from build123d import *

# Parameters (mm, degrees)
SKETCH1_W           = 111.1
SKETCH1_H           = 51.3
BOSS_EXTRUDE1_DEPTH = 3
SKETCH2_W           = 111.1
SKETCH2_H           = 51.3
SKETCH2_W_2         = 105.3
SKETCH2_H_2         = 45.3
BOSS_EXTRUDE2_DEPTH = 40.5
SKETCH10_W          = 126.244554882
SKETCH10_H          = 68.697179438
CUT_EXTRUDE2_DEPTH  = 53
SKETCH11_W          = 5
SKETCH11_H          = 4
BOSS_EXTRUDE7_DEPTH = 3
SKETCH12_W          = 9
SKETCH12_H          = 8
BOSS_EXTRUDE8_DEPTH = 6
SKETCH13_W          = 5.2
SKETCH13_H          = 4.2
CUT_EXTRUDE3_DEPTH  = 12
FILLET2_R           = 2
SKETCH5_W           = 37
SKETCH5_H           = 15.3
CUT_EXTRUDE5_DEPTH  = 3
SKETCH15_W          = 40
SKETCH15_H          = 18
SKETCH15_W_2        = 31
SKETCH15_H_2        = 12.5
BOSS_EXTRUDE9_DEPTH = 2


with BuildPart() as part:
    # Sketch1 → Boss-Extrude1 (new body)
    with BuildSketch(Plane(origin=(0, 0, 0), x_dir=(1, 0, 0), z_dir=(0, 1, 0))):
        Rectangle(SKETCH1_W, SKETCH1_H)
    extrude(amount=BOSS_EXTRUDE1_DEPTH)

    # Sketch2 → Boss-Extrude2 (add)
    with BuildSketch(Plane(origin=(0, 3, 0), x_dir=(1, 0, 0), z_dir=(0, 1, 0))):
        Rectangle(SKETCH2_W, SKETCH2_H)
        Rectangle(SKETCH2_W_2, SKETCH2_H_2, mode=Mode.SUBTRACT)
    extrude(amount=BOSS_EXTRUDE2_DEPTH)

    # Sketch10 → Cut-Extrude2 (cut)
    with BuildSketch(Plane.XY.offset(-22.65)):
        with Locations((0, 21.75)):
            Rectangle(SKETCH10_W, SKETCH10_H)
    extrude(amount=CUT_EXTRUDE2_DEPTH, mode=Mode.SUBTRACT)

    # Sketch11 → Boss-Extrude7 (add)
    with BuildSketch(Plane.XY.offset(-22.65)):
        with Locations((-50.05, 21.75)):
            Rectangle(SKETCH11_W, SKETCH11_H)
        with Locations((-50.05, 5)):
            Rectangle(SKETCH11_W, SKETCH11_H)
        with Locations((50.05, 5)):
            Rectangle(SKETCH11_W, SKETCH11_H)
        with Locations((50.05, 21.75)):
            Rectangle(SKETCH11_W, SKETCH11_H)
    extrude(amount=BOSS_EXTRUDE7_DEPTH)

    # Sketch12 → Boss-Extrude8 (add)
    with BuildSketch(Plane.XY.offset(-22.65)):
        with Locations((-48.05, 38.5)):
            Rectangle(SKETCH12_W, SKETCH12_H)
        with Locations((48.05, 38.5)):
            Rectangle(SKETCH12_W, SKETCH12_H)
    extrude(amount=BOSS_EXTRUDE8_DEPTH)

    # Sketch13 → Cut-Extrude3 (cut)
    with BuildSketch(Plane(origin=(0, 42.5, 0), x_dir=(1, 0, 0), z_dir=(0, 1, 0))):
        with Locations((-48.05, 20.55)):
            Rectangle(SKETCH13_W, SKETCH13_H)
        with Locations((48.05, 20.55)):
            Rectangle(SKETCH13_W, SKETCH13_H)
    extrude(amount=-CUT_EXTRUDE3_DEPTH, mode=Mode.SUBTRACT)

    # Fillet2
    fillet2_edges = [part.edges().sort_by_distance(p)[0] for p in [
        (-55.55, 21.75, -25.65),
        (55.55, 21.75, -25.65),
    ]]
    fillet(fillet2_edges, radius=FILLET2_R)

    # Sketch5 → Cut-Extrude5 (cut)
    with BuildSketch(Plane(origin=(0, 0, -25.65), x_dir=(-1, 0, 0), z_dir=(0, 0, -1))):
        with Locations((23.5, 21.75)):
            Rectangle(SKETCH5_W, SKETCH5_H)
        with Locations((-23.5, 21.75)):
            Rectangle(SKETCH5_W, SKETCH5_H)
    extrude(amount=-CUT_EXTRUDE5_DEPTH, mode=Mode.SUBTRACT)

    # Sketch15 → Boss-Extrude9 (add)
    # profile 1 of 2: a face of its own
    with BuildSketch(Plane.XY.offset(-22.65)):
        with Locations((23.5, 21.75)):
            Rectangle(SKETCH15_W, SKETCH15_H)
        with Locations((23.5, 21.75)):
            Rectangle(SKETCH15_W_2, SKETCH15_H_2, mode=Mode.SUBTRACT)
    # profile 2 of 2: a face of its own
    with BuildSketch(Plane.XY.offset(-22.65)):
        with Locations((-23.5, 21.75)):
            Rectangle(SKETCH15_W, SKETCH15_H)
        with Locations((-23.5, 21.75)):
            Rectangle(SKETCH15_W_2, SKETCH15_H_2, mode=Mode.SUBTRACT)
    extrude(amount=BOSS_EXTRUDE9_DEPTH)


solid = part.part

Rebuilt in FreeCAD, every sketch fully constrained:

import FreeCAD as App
import Part
import Sketcher


def edges_at(feature, points):
    """Names of the edges that pass closest to the given points."""
    edges = feature.Shape.Edges
    near = lambda p: min(range(len(edges)), key=lambda i: edges[i].distToShape(Part.Vertex(*p))[0])
    return sorted({f"Edge{near(p) + 1}" for p in points})

doc = App.newDocument("Part")
body = doc.addObject("PartDesign::Body", "Body")

# Sketch on XZ plane
sketch1 = body.newObject("Sketcher::SketchObject", "Sketch")
sketch1.AttachmentSupport = (doc.getObject("XZ_Plane"), [""])
sketch1.MapMode = "FlatFace"
sketch1.addGeometry([
    Part.LineSegment(App.Vector(-56, -26, 0), App.Vector(-56, 26, 0)),
    Part.LineSegment(App.Vector(-56, 26, 0), App.Vector(56, 26, 0)),
    Part.LineSegment(App.Vector(56, 26, 0), App.Vector(56, -26, 0)),
    Part.LineSegment(App.Vector(56, -26, 0), App.Vector(-56, -26, 0)),
], False)
sketch1.addConstraint([
    Sketcher.Constraint("Coincident", 0, 2, 1, 1),
    Sketcher.Constraint("Coincident", 1, 2, 2, 1),
    Sketcher.Constraint("Coincident", 2, 2, 3, 1),
    Sketcher.Constraint("Coincident", 3, 2, 0, 1),
    Sketcher.Constraint("Vertical", 0),
    Sketcher.Constraint("Horizontal", 1),
    Sketcher.Constraint("Vertical", 2),
    Sketcher.Constraint("Horizontal", 3),
    Sketcher.Constraint("Symmetric", 0, 2, 2, 2, -1, 1),
    Sketcher.Constraint("DistanceX", 1, 1, 1, 2, 111.1),
    Sketcher.Constraint("DistanceY", 0, 1, 0, 2, 51.3),
])
pad1 = body.newObject("PartDesign::Pad", "Pad")
pad1.Profile = sketch1
pad1.Length = 3
pad1.Reversed = True

# Sketch on XZ plane
sketch2 = body.newObject("Sketcher::SketchObject", "Sketch001")
sketch2.AttachmentSupport = (doc.getObject("XZ_Plane"), [""])
sketch2.MapMode = "FlatFace"
sketch2.AttachmentOffset = App.Placement(App.Vector(0, 0, -3), App.Rotation())
sketch2.addGeometry([
    Part.LineSegment(App.Vector(-56, -26, 0), App.Vector(-56, 26, 0)),  # 0
    Part.LineSegment(App.Vector(-56, 26, 0), App.Vector(56, 26, 0)),  # 1
    Part.LineSegment(App.Vector(56, 26, 0), App.Vector(56, -26, 0)),  # 2
    Part.LineSegment(App.Vector(56, -26, 0), App.Vector(-56, -26, 0)),  # 3
    Part.LineSegment(App.Vector(53, 23, 0), App.Vector(-53, 23, 0)),  # 4
    Part.LineSegment(App.Vector(-53, 23, 0), App.Vector(-53, -23, 0)),  # 5
    Part.LineSegment(App.Vector(-53, -23, 0), App.Vector(53, -23, 0)),  # 6
    Part.LineSegment(App.Vector(53, -23, 0), App.Vector(53, 23, 0)),  # 7
], False)
sketch2.addConstraint([
    Sketcher.Constraint("Coincident", 0, 2, 1, 1),
    Sketcher.Constraint("Coincident", 1, 2, 2, 1),
    Sketcher.Constraint("Coincident", 2, 2, 3, 1),
    Sketcher.Constraint("Coincident", 3, 2, 0, 1),
    Sketcher.Constraint("Coincident", 4, 2, 5, 1),
    Sketcher.Constraint("Coincident", 5, 2, 6, 1),
    Sketcher.Constraint("Coincident", 6, 2, 7, 1),
    Sketcher.Constraint("Coincident", 7, 2, 4, 1),
    Sketcher.Constraint("Vertical", 0),
    Sketcher.Constraint("Horizontal", 1),
    Sketcher.Constraint("Vertical", 2),
    Sketcher.Constraint("Horizontal", 3),
    Sketcher.Constraint("Horizontal", 4),
    Sketcher.Constraint("Vertical", 5),
    Sketcher.Constraint("Horizontal", 6),
    Sketcher.Constraint("Vertical", 7),
    Sketcher.Constraint("Symmetric", 0, 2, 2, 2, -1, 1),
    Sketcher.Constraint("Symmetric", 4, 2, 6, 2, -1, 1),
    Sketcher.Constraint("DistanceX", 1, 1, 1, 2, 111.1),
    Sketcher.Constraint("DistanceX", 4, 2, 4, 1, 105.3),
    Sketcher.Constraint("DistanceY", 0, 1, 0, 2, 51.3),
    Sketcher.Constraint("DistanceY", 5, 2, 5, 1, 45.3),
])
pad2 = body.newObject("PartDesign::Pad", "Pad001")
pad2.Profile = sketch2
pad2.Length = 40.5
pad2.Reversed = True

# Sketch on XY plane
sketch3 = body.newObject("Sketcher::SketchObject", "Sketch002")
sketch3.AttachmentSupport = (doc.getObject("XY_Plane"), [""])
sketch3.MapMode = "FlatFace"
sketch3.AttachmentOffset = App.Placement(App.Vector(0, 0, -22.65), App.Rotation())
sketch3.addGeometry([
    Part.LineSegment(App.Vector(-63, 56, 0), App.Vector(-63, -13, 0)),
    Part.LineSegment(App.Vector(-63, -13, 0), App.Vector(63, -13, 0)),
    Part.LineSegment(App.Vector(63, -13, 0), App.Vector(63, 56, 0)),
    Part.LineSegment(App.Vector(63, 56, 0), App.Vector(-63, 56, 0)),
], False)
sketch3.addConstraint([
    Sketcher.Constraint("Coincident", 0, 2, 1, 1),
    Sketcher.Constraint("Coincident", 1, 2, 2, 1),
    Sketcher.Constraint("Coincident", 2, 2, 3, 1),
    Sketcher.Constraint("Coincident", 3, 2, 0, 1),
    Sketcher.Constraint("Vertical", 0),
    Sketcher.Constraint("Horizontal", 1),
    Sketcher.Constraint("Vertical", 2),
    Sketcher.Constraint("Horizontal", 3),
    Sketcher.Constraint("DistanceY", 0, 2, 0, 1, 68.697179),
    Sketcher.Constraint("DistanceX", 1, 1, 1, 2, 126.244555),
    Sketcher.Constraint("DistanceY", 0, 2, -1, 1, 12.59859),
    Sketcher.Constraint("DistanceX", 0, 2, -1, 1, 63.122277),
])
pocket1 = body.newObject("PartDesign::Pocket", "Pocket")
pocket1.Profile = sketch3
pocket1.Length = 53
pocket1.Reversed = True

# Sketch on XY plane
sketch4 = body.newObject("Sketcher::SketchObject", "Sketch003")
sketch4.AttachmentSupport = (doc.getObject("XY_Plane"), [""])
sketch4.MapMode = "FlatFace"
sketch4.AttachmentOffset = App.Placement(App.Vector(0, 0, -22.65), App.Rotation())
sketch4.addGeometry([
    Part.LineSegment(App.Vector(-52.5, 23.8, 0), App.Vector(-52.5, 19.8, 0)),  # 0
    Part.LineSegment(App.Vector(-52.5, 19.8, 0), App.Vector(-47.5, 19.8, 0)),  # 1
    Part.LineSegment(App.Vector(-47.5, 19.8, 0), App.Vector(-47.5, 23.8, 0)),  # 2
    Part.LineSegment(App.Vector(-47.5, 23.8, 0), App.Vector(-52.5, 23.8, 0)),  # 3
    Part.LineSegment(App.Vector(-52.5, 7, 0), App.Vector(-52.5, 3, 0)),  # 4
    Part.LineSegment(App.Vector(-52.5, 3, 0), App.Vector(-47.5, 3, 0)),  # 5
    Part.LineSegment(App.Vector(-47.5, 3, 0), App.Vector(-47.5, 7, 0)),  # 6
    Part.LineSegment(App.Vector(-47.5, 7, 0), App.Vector(-52.5, 7, 0)),  # 7
    Part.LineSegment(App.Vector(47.5, 7, 0), App.Vector(47.5, 3, 0)),  # 8
    Part.LineSegment(App.Vector(47.5, 3, 0), App.Vector(52.5, 3, 0)),  # 9
    Part.LineSegment(App.Vector(52.5, 3, 0), App.Vector(52.5, 7, 0)),  # 10
    Part.LineSegment(App.Vector(52.5, 7, 0), App.Vector(47.5, 7, 0)),  # 11
    Part.LineSegment(App.Vector(47.5, 23.8, 0), App.Vector(47.5, 19.8, 0)),  # 12
    Part.LineSegment(App.Vector(47.5, 19.8, 0), App.Vector(52.5, 19.8, 0)),  # 13
    Part.LineSegment(App.Vector(52.5, 19.8, 0), App.Vector(52.5, 23.8, 0)),  # 14
    Part.LineSegment(App.Vector(52.5, 23.8, 0), App.Vector(47.5, 23.8, 0)),  # 15
], False)
sketch4.addConstraint([
    Sketcher.Constraint("Coincident", 0, 2, 1, 1),
    Sketcher.Constraint("Coincident", 1, 2, 2, 1),
    Sketcher.Constraint("Coincident", 2, 2, 3, 1),
    Sketcher.Constraint("Coincident", 3, 2, 0, 1),
    Sketcher.Constraint("Coincident", 4, 2, 5, 1),
    Sketcher.Constraint("Coincident", 5, 2, 6, 1),
    Sketcher.Constraint("Coincident", 6, 2, 7, 1),
    Sketcher.Constraint("Coincident", 7, 2, 4, 1),
    Sketcher.Constraint("Coincident", 8, 2, 9, 1),
    Sketcher.Constraint("Coincident", 9, 2, 10, 1),
    Sketcher.Constraint("Coincident", 10, 2, 11, 1),
    Sketcher.Constraint("Coincident", 11, 2, 8, 1),
    Sketcher.Constraint("Coincident", 12, 2, 13, 1),
    Sketcher.Constraint("Coincident", 13, 2, 14, 1),
    Sketcher.Constraint("Coincident", 14, 2, 15, 1),
    Sketcher.Constraint("Coincident", 15, 2, 12, 1),
    Sketcher.Constraint("Vertical", 0),
    Sketcher.Constraint("Horizontal", 1),
    Sketcher.Constraint("Vertical", 2),
    Sketcher.Constraint("Horizontal", 3),
    Sketcher.Constraint("Vertical", 4),
    Sketcher.Constraint("Horizontal", 5),
    Sketcher.Constraint("Vertical", 6),
    Sketcher.Constraint("Horizontal", 7),
    Sketcher.Constraint("Vertical", 8),
    Sketcher.Constraint("Horizontal", 9),
    Sketcher.Constraint("Vertical", 10),
    Sketcher.Constraint("Horizontal", 11),
    Sketcher.Constraint("Vertical", 12),
    Sketcher.Constraint("Horizontal", 13),
    Sketcher.Constraint("Vertical", 14),
    Sketcher.Constraint("Horizontal", 15),
    Sketcher.Constraint("Symmetric", 5, 2, 8, 2, -2),
    Sketcher.Constraint("Symmetric", 7, 2, 10, 2, -2),
    Sketcher.Constraint("Symmetric", 1, 2, 12, 2, -2),
    Sketcher.Constraint("Symmetric", 3, 2, 14, 2, -2),
    Sketcher.Constraint("Vertical", 3, 2, 4, 2),
    Sketcher.Constraint("Vertical", 2, 2, 5, 2),
    Sketcher.Constraint("Equal", 2, 4),
    Sketcher.Constraint("DistanceX", 1, 1, 1, 2, 5.0),
    Sketcher.Constraint("DistanceY", 0, 2, 0, 1, 4.0),
    Sketcher.Constraint("DistanceY", -1, 1, 4, 2, 3.0),
    Sketcher.Constraint("DistanceX", 5, 2, 8, 2, 95.1),
    Sketcher.Constraint("DistanceY", -1, 1, 0, 2, 19.75),
])
pad3 = body.newObject("PartDesign::Pad", "Pad002")
pad3.Profile = sketch4
pad3.Length = 3

# Sketch on XY plane
sketch5 = body.newObject("Sketcher::SketchObject", "Sketch004")
sketch5.AttachmentSupport = (doc.getObject("XY_Plane"), [""])
sketch5.MapMode = "FlatFace"
sketch5.AttachmentOffset = App.Placement(App.Vector(0, 0, -22.65), App.Rotation())
sketch5.addGeometry([
    Part.LineSegment(App.Vector(-53, 42, 0), App.Vector(-53, 34, 0)),  # 0
    Part.LineSegment(App.Vector(-53, 34, 0), App.Vector(-44, 34, 0)),  # 1
    Part.LineSegment(App.Vector(-44, 34, 0), App.Vector(-44, 42, 0)),  # 2
    Part.LineSegment(App.Vector(-44, 42, 0), App.Vector(-53, 42, 0)),  # 3
    Part.LineSegment(App.Vector(44, 42, 0), App.Vector(44, 34, 0)),  # 4
    Part.LineSegment(App.Vector(44, 34, 0), App.Vector(53, 34, 0)),  # 5
    Part.LineSegment(App.Vector(53, 34, 0), App.Vector(53, 42, 0)),  # 6
    Part.LineSegment(App.Vector(53, 42, 0), App.Vector(44, 42, 0)),  # 7
], False)
sketch5.addConstraint([
    Sketcher.Constraint("Coincident", 0, 2, 1, 1),
    Sketcher.Constraint("Coincident", 1, 2, 2, 1),
    Sketcher.Constraint("Coincident", 2, 2, 3, 1),
    Sketcher.Constraint("Coincident", 3, 2, 0, 1),
    Sketcher.Constraint("Coincident", 4, 2, 5, 1),
    Sketcher.Constraint("Coincident", 5, 2, 6, 1),
    Sketcher.Constraint("Coincident", 6, 2, 7, 1),
    Sketcher.Constraint("Coincident", 7, 2, 4, 1),
    Sketcher.Constraint("Vertical", 0),
    Sketcher.Constraint("Horizontal", 1),
    Sketcher.Constraint("Vertical", 2),
    Sketcher.Constraint("Horizontal", 3),
    Sketcher.Constraint("Vertical", 4),
    Sketcher.Constraint("Horizontal", 5),
    Sketcher.Constraint("Vertical", 6),
    Sketcher.Constraint("Horizontal", 7),
    Sketcher.Constraint("Symmetric", 1, 2, 4, 2, -2),
    Sketcher.Constraint("Symmetric", 3, 2, 6, 2, -2),
    Sketcher.Constraint("DistanceX", 1, 1, 1, 2, 9.0),
    Sketcher.Constraint("DistanceY", 0, 2, 0, 1, 8.0),
    Sketcher.Constraint("DistanceY", -1, 1, 0, 2, 34.5),
    Sketcher.Constraint("DistanceX", 1, 2, 4, 2, 87.1),
])
pad4 = body.newObject("PartDesign::Pad", "Pad003")
pad4.Profile = sketch5
pad4.Length = 6

# Sketch on XZ plane
sketch6 = body.newObject("Sketcher::SketchObject", "Sketch005")
sketch6.AttachmentSupport = (doc.getObject("XZ_Plane"), [""])
sketch6.MapMode = "FlatFace"
sketch6.AttachmentOffset = App.Placement(App.Vector(0, 0, -42.5), App.Rotation())
sketch6.addGeometry([
    Part.LineSegment(App.Vector(-50.6, -22.6, 0), App.Vector(-50.6, -18.4, 0)),  # 0
    Part.LineSegment(App.Vector(-50.6, -18.4, 0), App.Vector(-45.5, -18.4, 0)),  # 1
    Part.LineSegment(App.Vector(-45.5, -18.4, 0), App.Vector(-45.5, -22.6, 0)),  # 2
    Part.LineSegment(App.Vector(-45.5, -22.6, 0), App.Vector(-50.6, -22.6, 0)),  # 3
    Part.LineSegment(App.Vector(45.5, -22.6, 0), App.Vector(45.5, -18.4, 0)),  # 4
    Part.LineSegment(App.Vector(45.5, -18.4, 0), App.Vector(50.6, -18.4, 0)),  # 5
    Part.LineSegment(App.Vector(50.6, -18.4, 0), App.Vector(50.6, -22.6, 0)),  # 6
    Part.LineSegment(App.Vector(50.6, -22.6, 0), App.Vector(45.5, -22.6, 0)),  # 7
], False)
sketch6.addConstraint([
    Sketcher.Constraint("Coincident", 0, 2, 1, 1),
    Sketcher.Constraint("Coincident", 1, 2, 2, 1),
    Sketcher.Constraint("Coincident", 2, 2, 3, 1),
    Sketcher.Constraint("Coincident", 3, 2, 0, 1),
    Sketcher.Constraint("Coincident", 4, 2, 5, 1),
    Sketcher.Constraint("Coincident", 5, 2, 6, 1),
    Sketcher.Constraint("Coincident", 6, 2, 7, 1),
    Sketcher.Constraint("Coincident", 7, 2, 4, 1),
    Sketcher.Constraint("Vertical", 0),
    Sketcher.Constraint("Horizontal", 1),
    Sketcher.Constraint("Vertical", 2),
    Sketcher.Constraint("Horizontal", 3),
    Sketcher.Constraint("Vertical", 4),
    Sketcher.Constraint("Horizontal", 5),
    Sketcher.Constraint("Vertical", 6),
    Sketcher.Constraint("Horizontal", 7),
    Sketcher.Constraint("Symmetric", 1, 2, 4, 2, -2),
    Sketcher.Constraint("Symmetric", 3, 2, 6, 2, -2),
    Sketcher.Constraint("DistanceX", 1, 1, 1, 2, 5.2),
    Sketcher.Constraint("DistanceY", 0, 1, 0, 2, 4.2),
    Sketcher.Constraint("DistanceX", 1, 2, 4, 2, 90.9),
    Sketcher.Constraint("DistanceY", 0, 2, -1, 1, 18.45),
])
pocket2 = body.newObject("PartDesign::Pocket", "Pocket001")
pocket2.Profile = sketch6
pocket2.Length = 12
pocket2.Reversed = True
doc.recompute()

fillet = body.newObject("PartDesign::Fillet", "Fillet")
fillet.Base = (pocket2, edges_at(pocket2, [(-55.55, 21.75, -25.65), (55.55, 21.75, -25.65)]))
fillet.Radius = 2

# Sketch on XY plane
sketch7 = body.newObject("Sketcher::SketchObject", "Sketch006")
sketch7.AttachmentSupport = (doc.getObject("XY_Plane"), [""])
sketch7.MapMode = "FlatFace"
sketch7.AttachmentOffset = App.Placement(App.Vector(0, 0, -25.65), App.Rotation())
sketch7.addGeometry([
    Part.LineSegment(App.Vector(-5, 29, 0), App.Vector(-5, 14, 0)),  # 0
    Part.LineSegment(App.Vector(-5, 14, 0), App.Vector(-42, 14, 0)),  # 1
    Part.LineSegment(App.Vector(-42, 14, 0), App.Vector(-42, 29, 0)),  # 2
    Part.LineSegment(App.Vector(-42, 29, 0), App.Vector(-5, 29, 0)),  # 3
    Part.LineSegment(App.Vector(42, 29, 0), App.Vector(42, 14, 0)),  # 4
    Part.LineSegment(App.Vector(42, 14, 0), App.Vector(5, 14, 0)),  # 5
    Part.LineSegment(App.Vector(5, 14, 0), App.Vector(5, 29, 0)),  # 6
    Part.LineSegment(App.Vector(5, 29, 0), App.Vector(42, 29, 0)),  # 7
], False)
sketch7.addConstraint([
    Sketcher.Constraint("Coincident", 0, 2, 1, 1),
    Sketcher.Constraint("Coincident", 1, 2, 2, 1),
    Sketcher.Constraint("Coincident", 2, 2, 3, 1),
    Sketcher.Constraint("Coincident", 3, 2, 0, 1),
    Sketcher.Constraint("Coincident", 4, 2, 5, 1),
    Sketcher.Constraint("Coincident", 5, 2, 6, 1),
    Sketcher.Constraint("Coincident", 6, 2, 7, 1),
    Sketcher.Constraint("Coincident", 7, 2, 4, 1),
    Sketcher.Constraint("Vertical", 0),
    Sketcher.Constraint("Horizontal", 1),
    Sketcher.Constraint("Vertical", 2),
    Sketcher.Constraint("Horizontal", 3),
    Sketcher.Constraint("Vertical", 4),
    Sketcher.Constraint("Horizontal", 5),
    Sketcher.Constraint("Vertical", 6),
    Sketcher.Constraint("Horizontal", 7),
    Sketcher.Constraint("Symmetric", 1, 2, 4, 2, -2),
    Sketcher.Constraint("Symmetric", 3, 2, 6, 2, -2),
    Sketcher.Constraint("DistanceX", 1, 2, 1, 1, 37.0),
    Sketcher.Constraint("DistanceY", 0, 2, 0, 1, 15.3),
    Sketcher.Constraint("DistanceX", 0, 2, -1, 1, 5.0),
    Sketcher.Constraint("DistanceY", -1, 1, 0, 2, 14.1),
])
pocket3 = body.newObject("PartDesign::Pocket", "Pocket002")
pocket3.Profile = sketch7
pocket3.Length = 3
pocket3.Reversed = True

# Sketch on XY plane
sketch8 = body.newObject("Sketcher::SketchObject", "Sketch007")
sketch8.AttachmentSupport = (doc.getObject("XY_Plane"), [""])
sketch8.MapMode = "FlatFace"
sketch8.AttachmentOffset = App.Placement(App.Vector(0, 0, -22.65), App.Rotation())
sketch8.addGeometry([
    Part.LineSegment(App.Vector(4, 31, 0), App.Vector(4, 13, 0)),  # 0
    Part.LineSegment(App.Vector(4, 13, 0), App.Vector(44, 13, 0)),  # 1
    Part.LineSegment(App.Vector(44, 13, 0), App.Vector(44, 31, 0)),  # 2
    Part.LineSegment(App.Vector(44, 31, 0), App.Vector(4, 31, 0)),  # 3
    Part.LineSegment(App.Vector(39, 16, 0), App.Vector(8, 16, 0)),  # 4
    Part.LineSegment(App.Vector(8, 16, 0), App.Vector(8, 28, 0)),  # 5
    Part.LineSegment(App.Vector(8, 28, 0), App.Vector(39, 28, 0)),  # 6
    Part.LineSegment(App.Vector(39, 28, 0), App.Vector(39, 16, 0)),  # 7
    Part.LineSegment(App.Vector(-44, 31, 0), App.Vector(-44, 13, 0)),  # 8
    Part.LineSegment(App.Vector(-44, 13, 0), App.Vector(-4, 13, 0)),  # 9
    Part.LineSegment(App.Vector(-4, 13, 0), App.Vector(-4, 31, 0)),  # 10
    Part.LineSegment(App.Vector(-4, 31, 0), App.Vector(-44, 31, 0)),  # 11
    Part.LineSegment(App.Vector(-8, 16, 0), App.Vector(-39, 16, 0)),  # 12
    Part.LineSegment(App.Vector(-39, 16, 0), App.Vector(-39, 28, 0)),  # 13
    Part.LineSegment(App.Vector(-39, 28, 0), App.Vector(-8, 28, 0)),  # 14
    Part.LineSegment(App.Vector(-8, 28, 0), App.Vector(-8, 16, 0)),  # 15
], False)
sketch8.addConstraint([
    Sketcher.Constraint("Coincident", 0, 2, 1, 1),
    Sketcher.Constraint("Coincident", 1, 2, 2, 1),
    Sketcher.Constraint("Coincident", 2, 2, 3, 1),
    Sketcher.Constraint("Coincident", 3, 2, 0, 1),
    Sketcher.Constraint("Coincident", 4, 2, 5, 1),
    Sketcher.Constraint("Coincident", 5, 2, 6, 1),
    Sketcher.Constraint("Coincident", 6, 2, 7, 1),
    Sketcher.Constraint("Coincident", 7, 2, 4, 1),
    Sketcher.Constraint("Coincident", 8, 2, 9, 1),
    Sketcher.Constraint("Coincident", 9, 2, 10, 1),
    Sketcher.Constraint("Coincident", 10, 2, 11, 1),
    Sketcher.Constraint("Coincident", 11, 2, 8, 1),
    Sketcher.Constraint("Coincident", 12, 2, 13, 1),
    Sketcher.Constraint("Coincident", 13, 2, 14, 1),
    Sketcher.Constraint("Coincident", 14, 2, 15, 1),
    Sketcher.Constraint("Coincident", 15, 2, 12, 1),
    Sketcher.Constraint("Vertical", 0),
    Sketcher.Constraint("Horizontal", 1),
    Sketcher.Constraint("Vertical", 2),
    Sketcher.Constraint("Horizontal", 3),
    Sketcher.Constraint("Horizontal", 4),
    Sketcher.Constraint("Vertical", 5),
    Sketcher.Constraint("Horizontal", 6),
    Sketcher.Constraint("Vertical", 7),
    Sketcher.Constraint("Vertical", 8),
    Sketcher.Constraint("Horizontal", 9),
    Sketcher.Constraint("Vertical", 10),
    Sketcher.Constraint("Horizontal", 11),
    Sketcher.Constraint("Horizontal", 12),
    Sketcher.Constraint("Vertical", 13),
    Sketcher.Constraint("Horizontal", 14),
    Sketcher.Constraint("Vertical", 15),
    Sketcher.Constraint("Symmetric", 1, 2, 8, 2, -2),
    Sketcher.Constraint("Symmetric", 3, 2, 10, 2, -2),
    Sketcher.Constraint("Symmetric", 7, 2, 12, 2, -2),
    Sketcher.Constraint("Symmetric", 5, 2, 14, 2, -2),
    Sketcher.Constraint("DistanceX", 1, 1, 1, 2, 40.0),
    Sketcher.Constraint("DistanceX", 4, 2, 4, 1, 31.0),
    Sketcher.Constraint("DistanceY", 0, 2, 0, 1, 18.0),
    Sketcher.Constraint("DistanceY", 5, 1, 5, 2, 12.5),
    Sketcher.Constraint("DistanceX", -1, 1, 4, 2, 8.0),
    Sketcher.Constraint("DistanceY", -1, 1, 5, 2, 28.0),
    Sketcher.Constraint("DistanceX", 8, 2, 0, 2, 47.0),
    Sketcher.Constraint("DistanceY", -1, 1, 0, 2, 12.75),
])
pad5 = body.newObject("PartDesign::Pad", "Pad004")
pad5.Profile = sketch8
pad5.Length = 2

doc.recompute()
